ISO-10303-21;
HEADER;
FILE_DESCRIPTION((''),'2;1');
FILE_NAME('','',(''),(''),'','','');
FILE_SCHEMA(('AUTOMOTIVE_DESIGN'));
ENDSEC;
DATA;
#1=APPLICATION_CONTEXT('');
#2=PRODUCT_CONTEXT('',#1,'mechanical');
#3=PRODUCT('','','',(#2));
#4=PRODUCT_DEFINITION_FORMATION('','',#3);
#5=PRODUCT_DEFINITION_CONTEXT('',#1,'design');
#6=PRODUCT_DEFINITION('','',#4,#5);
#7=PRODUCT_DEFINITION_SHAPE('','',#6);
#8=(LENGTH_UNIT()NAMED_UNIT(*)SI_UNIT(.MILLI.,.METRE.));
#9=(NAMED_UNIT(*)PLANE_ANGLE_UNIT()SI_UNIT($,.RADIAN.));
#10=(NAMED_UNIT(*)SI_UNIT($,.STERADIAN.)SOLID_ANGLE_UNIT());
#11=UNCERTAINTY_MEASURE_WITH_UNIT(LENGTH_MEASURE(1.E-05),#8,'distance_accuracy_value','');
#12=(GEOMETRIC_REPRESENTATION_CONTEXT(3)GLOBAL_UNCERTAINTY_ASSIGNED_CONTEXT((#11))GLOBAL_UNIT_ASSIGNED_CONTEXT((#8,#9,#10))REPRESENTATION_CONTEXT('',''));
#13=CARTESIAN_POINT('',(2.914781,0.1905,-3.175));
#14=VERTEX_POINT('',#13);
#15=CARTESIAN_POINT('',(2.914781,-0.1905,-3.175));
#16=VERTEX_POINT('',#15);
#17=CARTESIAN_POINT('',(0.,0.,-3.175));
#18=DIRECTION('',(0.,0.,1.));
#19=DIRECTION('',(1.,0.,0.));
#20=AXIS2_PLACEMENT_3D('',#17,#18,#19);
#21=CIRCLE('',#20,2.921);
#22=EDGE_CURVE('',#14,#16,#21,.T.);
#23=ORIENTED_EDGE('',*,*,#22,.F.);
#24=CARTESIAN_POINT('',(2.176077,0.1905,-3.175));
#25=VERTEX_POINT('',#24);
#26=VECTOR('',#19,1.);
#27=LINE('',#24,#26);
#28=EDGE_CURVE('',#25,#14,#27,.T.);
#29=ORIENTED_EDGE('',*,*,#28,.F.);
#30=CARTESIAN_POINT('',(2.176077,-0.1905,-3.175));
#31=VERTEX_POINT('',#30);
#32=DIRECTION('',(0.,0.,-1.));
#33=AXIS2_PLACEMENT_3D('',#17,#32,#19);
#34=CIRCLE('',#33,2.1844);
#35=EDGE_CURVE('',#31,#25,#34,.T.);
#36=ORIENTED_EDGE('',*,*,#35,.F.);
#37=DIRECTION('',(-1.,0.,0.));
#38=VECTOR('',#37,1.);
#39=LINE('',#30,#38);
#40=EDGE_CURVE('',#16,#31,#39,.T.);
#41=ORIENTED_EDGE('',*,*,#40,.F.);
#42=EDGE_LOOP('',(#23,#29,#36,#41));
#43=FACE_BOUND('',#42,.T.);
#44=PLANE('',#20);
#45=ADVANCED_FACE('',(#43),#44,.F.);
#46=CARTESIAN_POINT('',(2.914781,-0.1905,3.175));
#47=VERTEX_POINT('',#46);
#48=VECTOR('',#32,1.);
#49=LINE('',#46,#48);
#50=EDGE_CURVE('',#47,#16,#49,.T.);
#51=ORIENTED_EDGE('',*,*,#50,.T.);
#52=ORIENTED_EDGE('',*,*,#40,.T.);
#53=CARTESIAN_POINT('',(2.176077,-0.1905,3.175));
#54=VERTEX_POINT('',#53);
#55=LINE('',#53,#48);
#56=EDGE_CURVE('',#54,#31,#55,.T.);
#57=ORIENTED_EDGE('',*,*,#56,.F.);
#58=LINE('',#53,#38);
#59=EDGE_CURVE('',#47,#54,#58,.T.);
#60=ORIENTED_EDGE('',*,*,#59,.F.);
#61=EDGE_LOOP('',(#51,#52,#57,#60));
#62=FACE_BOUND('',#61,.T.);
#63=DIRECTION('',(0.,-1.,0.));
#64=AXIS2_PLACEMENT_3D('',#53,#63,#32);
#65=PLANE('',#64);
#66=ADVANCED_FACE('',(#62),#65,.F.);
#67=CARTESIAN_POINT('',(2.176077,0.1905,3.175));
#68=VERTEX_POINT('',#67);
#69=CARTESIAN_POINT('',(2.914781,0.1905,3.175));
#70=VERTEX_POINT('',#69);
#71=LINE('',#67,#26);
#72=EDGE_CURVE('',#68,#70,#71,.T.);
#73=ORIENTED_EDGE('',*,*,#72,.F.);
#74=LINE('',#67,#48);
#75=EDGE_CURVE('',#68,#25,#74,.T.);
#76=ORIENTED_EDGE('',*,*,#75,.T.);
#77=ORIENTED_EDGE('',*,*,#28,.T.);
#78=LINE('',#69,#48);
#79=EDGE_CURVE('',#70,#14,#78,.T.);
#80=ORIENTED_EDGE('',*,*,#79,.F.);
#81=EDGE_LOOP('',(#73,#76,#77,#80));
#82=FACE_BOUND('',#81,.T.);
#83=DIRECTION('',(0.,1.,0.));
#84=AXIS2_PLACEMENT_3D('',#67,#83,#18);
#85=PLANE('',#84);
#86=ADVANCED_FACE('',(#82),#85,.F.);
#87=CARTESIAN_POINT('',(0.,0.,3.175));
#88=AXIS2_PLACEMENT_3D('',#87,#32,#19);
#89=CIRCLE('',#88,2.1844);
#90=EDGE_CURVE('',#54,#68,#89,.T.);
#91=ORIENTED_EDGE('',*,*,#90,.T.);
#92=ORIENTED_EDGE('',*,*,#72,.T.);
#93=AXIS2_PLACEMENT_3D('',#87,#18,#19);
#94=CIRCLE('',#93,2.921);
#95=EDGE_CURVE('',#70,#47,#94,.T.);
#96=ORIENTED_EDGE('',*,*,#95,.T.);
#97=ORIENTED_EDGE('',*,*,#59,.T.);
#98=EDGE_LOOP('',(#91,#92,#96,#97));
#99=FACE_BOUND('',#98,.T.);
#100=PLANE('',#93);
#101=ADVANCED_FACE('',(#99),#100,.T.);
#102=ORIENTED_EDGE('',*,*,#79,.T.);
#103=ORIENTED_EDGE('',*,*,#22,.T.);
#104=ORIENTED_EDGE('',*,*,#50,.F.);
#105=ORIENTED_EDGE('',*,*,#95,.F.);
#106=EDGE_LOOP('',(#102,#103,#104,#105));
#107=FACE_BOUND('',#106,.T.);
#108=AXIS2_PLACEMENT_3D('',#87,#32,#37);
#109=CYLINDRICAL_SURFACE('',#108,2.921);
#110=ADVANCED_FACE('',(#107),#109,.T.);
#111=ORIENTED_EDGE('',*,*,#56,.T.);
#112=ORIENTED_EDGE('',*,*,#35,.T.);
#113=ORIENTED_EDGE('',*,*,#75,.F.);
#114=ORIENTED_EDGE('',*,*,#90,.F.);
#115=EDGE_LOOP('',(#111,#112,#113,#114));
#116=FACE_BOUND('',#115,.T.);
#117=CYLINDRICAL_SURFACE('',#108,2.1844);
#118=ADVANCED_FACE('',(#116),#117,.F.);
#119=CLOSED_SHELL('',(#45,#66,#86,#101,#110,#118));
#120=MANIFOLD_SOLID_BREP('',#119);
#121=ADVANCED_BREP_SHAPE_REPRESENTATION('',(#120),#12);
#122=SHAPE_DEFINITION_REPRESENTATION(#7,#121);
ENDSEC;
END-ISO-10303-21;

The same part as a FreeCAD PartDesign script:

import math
import FreeCAD as App
import Part
import Sketcher
Q = App.Units.Quantity

doc = App.newDocument("Part")
body = doc.addObject("PartDesign::Body", "Body")

# Sketch on XY plane
sketch1 = body.newObject("Sketcher::SketchObject", "Sketch")
sketch1.AttachmentSupport = (doc.getObject("XY_Plane"), [""])
sketch1.MapMode = "FlatFace"
sketch1.addGeometry(Part.LineSegment(App.Vector(2.176077, 0.1905, 0), App.Vector(2.914781, 0.1905, 0)), False)
sketch1.addGeometry(Part.ArcOfCircle(Part.Circle(App.Vector(0, 0, 0), App.Vector(0, 0, 1), 2.921), math.radians(3.739335), math.radians(356.260665)), False)
sketch1.addGeometry(Part.LineSegment(App.Vector(2.914781, -0.1905, 0), App.Vector(2.176077, -0.1905, 0)), False)
sketch1.addGeometry(Part.ArcOfCircle(Part.Circle(App.Vector(0, 0, 0), App.Vector(0, 0, 1), 2.1844), math.radians(5.00308), math.radians(354.99692)), False)
sketch1.addConstraint(Sketcher.Constraint("Coincident", 0, 2, 1, 1))
sketch1.addConstraint(Sketcher.Constraint("Coincident", 1, 2, 2, 1))
sketch1.addConstraint(Sketcher.Constraint("Coincident", 2, 2, 3, 2))
sketch1.addConstraint(Sketcher.Constraint("Coincident", 3, 1, 0, 1))
sketch1.addConstraint(Sketcher.Constraint("Horizontal", 0))
sketch1.addConstraint(Sketcher.Constraint("Horizontal", 2))
sketch1.addConstraint(Sketcher.Constraint("Coincident", 1, 3, -1, 1))
sketch1.addConstraint(Sketcher.Constraint("Coincident", 3, 3, -1, 1))
sketch1.addConstraint(Sketcher.Constraint("Vertical", 0, 2, 1, 2))
sketch1.addConstraint(Sketcher.Constraint("Radius", 1, Q("0.115 in")))
sketch1.addConstraint(Sketcher.Constraint("Radius", 3, Q("0.086 in")))
sketch1.addConstraint(Sketcher.Constraint("DistanceY", 1, 2, 0, 2, Q("0.015 in")))
pad1 = body.newObject("PartDesign::Pad", "Pad")
pad1.Profile = sketch1
pad1.Type = "TwoLengths"
pad1.Length = Q("0.125 in")
pad1.Length2 = Q("0.125 in")

doc.recompute()
